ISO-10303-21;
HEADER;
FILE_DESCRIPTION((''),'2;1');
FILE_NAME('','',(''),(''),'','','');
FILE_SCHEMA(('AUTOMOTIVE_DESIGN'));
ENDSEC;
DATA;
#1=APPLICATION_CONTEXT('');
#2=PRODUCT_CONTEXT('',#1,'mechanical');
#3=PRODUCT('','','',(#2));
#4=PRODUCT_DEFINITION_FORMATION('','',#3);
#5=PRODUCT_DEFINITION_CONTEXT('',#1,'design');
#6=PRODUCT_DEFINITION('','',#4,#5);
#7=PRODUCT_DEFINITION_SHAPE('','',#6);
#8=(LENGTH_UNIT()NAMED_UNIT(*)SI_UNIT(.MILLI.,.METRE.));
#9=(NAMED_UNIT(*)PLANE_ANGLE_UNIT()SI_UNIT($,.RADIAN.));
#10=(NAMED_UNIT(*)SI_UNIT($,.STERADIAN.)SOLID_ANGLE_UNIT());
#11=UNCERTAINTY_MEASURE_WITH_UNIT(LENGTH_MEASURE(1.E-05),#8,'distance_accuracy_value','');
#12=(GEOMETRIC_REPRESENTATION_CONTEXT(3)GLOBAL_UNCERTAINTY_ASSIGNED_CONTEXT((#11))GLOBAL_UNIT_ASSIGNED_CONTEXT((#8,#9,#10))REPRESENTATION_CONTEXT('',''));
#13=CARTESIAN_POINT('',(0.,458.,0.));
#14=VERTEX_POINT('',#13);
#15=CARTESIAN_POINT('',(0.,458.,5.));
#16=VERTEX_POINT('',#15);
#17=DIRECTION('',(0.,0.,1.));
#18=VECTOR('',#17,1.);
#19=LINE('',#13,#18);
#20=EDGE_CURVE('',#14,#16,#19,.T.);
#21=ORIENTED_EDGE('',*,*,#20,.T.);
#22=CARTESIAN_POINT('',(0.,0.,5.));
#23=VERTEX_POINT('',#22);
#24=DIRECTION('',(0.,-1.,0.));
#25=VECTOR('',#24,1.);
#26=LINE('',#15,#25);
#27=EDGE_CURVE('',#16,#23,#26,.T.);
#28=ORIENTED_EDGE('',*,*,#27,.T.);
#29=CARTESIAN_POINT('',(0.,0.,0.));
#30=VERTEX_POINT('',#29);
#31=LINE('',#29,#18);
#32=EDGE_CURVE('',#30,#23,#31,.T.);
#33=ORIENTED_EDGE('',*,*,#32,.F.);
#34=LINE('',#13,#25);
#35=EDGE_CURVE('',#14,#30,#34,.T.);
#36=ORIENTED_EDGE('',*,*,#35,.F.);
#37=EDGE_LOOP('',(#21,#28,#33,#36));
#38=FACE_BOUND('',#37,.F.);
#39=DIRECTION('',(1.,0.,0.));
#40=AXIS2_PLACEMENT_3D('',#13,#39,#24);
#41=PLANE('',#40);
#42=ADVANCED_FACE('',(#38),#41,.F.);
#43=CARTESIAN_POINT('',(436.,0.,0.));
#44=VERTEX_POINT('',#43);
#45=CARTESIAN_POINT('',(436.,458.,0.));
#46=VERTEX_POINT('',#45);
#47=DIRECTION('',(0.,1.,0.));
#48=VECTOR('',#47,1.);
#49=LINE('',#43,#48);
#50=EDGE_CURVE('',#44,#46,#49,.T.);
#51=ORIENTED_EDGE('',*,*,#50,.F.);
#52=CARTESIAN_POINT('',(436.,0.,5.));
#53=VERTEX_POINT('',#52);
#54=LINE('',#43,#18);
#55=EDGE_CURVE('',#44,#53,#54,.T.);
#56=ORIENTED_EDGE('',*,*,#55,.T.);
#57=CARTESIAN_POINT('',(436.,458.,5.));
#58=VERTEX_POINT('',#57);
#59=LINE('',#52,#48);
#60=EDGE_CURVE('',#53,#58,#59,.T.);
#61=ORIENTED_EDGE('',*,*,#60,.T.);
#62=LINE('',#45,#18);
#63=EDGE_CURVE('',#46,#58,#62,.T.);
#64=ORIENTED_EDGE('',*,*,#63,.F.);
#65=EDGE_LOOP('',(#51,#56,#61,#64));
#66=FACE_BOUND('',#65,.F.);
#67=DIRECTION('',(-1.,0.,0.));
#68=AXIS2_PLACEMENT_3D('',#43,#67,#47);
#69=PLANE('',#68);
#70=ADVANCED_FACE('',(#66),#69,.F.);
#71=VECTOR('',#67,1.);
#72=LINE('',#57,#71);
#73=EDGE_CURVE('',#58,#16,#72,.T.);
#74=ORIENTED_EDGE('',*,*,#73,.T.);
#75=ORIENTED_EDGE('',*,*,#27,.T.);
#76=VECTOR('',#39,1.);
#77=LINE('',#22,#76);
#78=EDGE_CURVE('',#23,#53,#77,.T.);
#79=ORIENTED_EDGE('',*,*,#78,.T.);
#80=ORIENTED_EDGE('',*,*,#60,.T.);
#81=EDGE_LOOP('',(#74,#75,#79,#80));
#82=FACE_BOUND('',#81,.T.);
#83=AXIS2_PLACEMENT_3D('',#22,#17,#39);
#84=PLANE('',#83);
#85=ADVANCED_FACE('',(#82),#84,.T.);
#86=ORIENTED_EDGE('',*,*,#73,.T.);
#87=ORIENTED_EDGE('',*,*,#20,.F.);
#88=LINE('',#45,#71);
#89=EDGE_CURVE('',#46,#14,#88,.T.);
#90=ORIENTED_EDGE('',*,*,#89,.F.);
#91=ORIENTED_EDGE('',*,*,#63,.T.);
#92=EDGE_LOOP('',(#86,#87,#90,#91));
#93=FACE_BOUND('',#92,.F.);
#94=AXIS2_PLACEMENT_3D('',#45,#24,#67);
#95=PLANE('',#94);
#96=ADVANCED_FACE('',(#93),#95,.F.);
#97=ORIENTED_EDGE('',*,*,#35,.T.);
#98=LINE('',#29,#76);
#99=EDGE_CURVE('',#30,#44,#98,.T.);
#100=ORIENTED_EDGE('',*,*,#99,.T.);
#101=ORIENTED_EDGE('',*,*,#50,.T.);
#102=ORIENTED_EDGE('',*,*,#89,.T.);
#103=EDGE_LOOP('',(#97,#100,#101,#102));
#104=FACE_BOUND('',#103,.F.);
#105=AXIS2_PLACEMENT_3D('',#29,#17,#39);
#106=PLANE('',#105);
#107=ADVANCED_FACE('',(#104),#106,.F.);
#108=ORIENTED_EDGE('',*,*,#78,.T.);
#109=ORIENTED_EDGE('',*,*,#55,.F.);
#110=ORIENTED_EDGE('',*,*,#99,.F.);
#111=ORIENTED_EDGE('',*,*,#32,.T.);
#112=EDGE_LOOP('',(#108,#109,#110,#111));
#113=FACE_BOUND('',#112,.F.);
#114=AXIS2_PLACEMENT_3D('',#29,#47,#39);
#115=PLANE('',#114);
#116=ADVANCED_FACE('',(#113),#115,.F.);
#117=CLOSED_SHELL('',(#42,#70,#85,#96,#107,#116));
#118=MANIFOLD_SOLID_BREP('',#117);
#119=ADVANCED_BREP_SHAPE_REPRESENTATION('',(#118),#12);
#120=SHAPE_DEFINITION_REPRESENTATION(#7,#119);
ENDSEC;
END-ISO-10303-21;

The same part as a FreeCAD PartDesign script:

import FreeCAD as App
import Part
import Sketcher
Q = App.Units.Quantity

doc = App.newDocument("Part")
params = doc.addObject("Spreadsheet::Sheet", "Params")
for row, (alias, value) in enumerate([
    ("sketch1_width", "436 mm"),
    ("sketch1_height", "458 mm"),
    ("pad1_length", "5 mm"),
], start=1):
    params.set(f"A{row}", alias)
    params.set(f"B{row}", "=" + value)
    params.setAlias(f"B{row}", alias)

body = doc.addObject("PartDesign::Body", "Body")

# Sketch on XY plane
sketch1 = body.newObject("Sketcher::SketchObject", "Sketch")
sketch1.AttachmentSupport = (doc.getObject("XY_Plane"), [""])
sketch1.MapMode = "FlatFace"
sketch1.addGeometry([
    Part.LineSegment(App.Vector(0, 458, 0), App.Vector(0, 0, 0)),
    Part.LineSegment(App.Vector(0, 0, 0), App.Vector(436, 0, 0)),
    Part.LineSegment(App.Vector(436, 0, 0), App.Vector(436, 458, 0)),
    Part.LineSegment(App.Vector(436, 458, 0), App.Vector(0, 458, 0)),
], False)
sketch1.addConstraint([
    Sketcher.Constraint("Coincident", 0, 2, 1, 1),
    Sketcher.Constraint("Coincident", 1, 2, 2, 1),
    Sketcher.Constraint("Coincident", 2, 2, 3, 1),
    Sketcher.Constraint("Coincident", 3, 2, 0, 1),
    Sketcher.Constraint("Vertical", 0),
    Sketcher.Constraint("Horizontal", 1),
    Sketcher.Constraint("Vertical", 2),
    Sketcher.Constraint("Horizontal", 3),
    Sketcher.Constraint("Coincident", 0, 2, -1, 1),
    Sketcher.Constraint("DistanceX", 1, 1, 1, 2, Q("436 mm")),
    Sketcher.Constraint("DistanceY", 0, 2, 0, 1, Q("458 mm")),
])
sketch1.setExpression("Constraints[9]", "Params.sketch1_width")
sketch1.setExpression("Constraints[10]", "Params.sketch1_height")
pad1 = body.newObject("PartDesign::Pad", "Pad")
pad1.Profile = sketch1
pad1.setExpression("Length", "Params.pad1_length")

doc.recompute()
